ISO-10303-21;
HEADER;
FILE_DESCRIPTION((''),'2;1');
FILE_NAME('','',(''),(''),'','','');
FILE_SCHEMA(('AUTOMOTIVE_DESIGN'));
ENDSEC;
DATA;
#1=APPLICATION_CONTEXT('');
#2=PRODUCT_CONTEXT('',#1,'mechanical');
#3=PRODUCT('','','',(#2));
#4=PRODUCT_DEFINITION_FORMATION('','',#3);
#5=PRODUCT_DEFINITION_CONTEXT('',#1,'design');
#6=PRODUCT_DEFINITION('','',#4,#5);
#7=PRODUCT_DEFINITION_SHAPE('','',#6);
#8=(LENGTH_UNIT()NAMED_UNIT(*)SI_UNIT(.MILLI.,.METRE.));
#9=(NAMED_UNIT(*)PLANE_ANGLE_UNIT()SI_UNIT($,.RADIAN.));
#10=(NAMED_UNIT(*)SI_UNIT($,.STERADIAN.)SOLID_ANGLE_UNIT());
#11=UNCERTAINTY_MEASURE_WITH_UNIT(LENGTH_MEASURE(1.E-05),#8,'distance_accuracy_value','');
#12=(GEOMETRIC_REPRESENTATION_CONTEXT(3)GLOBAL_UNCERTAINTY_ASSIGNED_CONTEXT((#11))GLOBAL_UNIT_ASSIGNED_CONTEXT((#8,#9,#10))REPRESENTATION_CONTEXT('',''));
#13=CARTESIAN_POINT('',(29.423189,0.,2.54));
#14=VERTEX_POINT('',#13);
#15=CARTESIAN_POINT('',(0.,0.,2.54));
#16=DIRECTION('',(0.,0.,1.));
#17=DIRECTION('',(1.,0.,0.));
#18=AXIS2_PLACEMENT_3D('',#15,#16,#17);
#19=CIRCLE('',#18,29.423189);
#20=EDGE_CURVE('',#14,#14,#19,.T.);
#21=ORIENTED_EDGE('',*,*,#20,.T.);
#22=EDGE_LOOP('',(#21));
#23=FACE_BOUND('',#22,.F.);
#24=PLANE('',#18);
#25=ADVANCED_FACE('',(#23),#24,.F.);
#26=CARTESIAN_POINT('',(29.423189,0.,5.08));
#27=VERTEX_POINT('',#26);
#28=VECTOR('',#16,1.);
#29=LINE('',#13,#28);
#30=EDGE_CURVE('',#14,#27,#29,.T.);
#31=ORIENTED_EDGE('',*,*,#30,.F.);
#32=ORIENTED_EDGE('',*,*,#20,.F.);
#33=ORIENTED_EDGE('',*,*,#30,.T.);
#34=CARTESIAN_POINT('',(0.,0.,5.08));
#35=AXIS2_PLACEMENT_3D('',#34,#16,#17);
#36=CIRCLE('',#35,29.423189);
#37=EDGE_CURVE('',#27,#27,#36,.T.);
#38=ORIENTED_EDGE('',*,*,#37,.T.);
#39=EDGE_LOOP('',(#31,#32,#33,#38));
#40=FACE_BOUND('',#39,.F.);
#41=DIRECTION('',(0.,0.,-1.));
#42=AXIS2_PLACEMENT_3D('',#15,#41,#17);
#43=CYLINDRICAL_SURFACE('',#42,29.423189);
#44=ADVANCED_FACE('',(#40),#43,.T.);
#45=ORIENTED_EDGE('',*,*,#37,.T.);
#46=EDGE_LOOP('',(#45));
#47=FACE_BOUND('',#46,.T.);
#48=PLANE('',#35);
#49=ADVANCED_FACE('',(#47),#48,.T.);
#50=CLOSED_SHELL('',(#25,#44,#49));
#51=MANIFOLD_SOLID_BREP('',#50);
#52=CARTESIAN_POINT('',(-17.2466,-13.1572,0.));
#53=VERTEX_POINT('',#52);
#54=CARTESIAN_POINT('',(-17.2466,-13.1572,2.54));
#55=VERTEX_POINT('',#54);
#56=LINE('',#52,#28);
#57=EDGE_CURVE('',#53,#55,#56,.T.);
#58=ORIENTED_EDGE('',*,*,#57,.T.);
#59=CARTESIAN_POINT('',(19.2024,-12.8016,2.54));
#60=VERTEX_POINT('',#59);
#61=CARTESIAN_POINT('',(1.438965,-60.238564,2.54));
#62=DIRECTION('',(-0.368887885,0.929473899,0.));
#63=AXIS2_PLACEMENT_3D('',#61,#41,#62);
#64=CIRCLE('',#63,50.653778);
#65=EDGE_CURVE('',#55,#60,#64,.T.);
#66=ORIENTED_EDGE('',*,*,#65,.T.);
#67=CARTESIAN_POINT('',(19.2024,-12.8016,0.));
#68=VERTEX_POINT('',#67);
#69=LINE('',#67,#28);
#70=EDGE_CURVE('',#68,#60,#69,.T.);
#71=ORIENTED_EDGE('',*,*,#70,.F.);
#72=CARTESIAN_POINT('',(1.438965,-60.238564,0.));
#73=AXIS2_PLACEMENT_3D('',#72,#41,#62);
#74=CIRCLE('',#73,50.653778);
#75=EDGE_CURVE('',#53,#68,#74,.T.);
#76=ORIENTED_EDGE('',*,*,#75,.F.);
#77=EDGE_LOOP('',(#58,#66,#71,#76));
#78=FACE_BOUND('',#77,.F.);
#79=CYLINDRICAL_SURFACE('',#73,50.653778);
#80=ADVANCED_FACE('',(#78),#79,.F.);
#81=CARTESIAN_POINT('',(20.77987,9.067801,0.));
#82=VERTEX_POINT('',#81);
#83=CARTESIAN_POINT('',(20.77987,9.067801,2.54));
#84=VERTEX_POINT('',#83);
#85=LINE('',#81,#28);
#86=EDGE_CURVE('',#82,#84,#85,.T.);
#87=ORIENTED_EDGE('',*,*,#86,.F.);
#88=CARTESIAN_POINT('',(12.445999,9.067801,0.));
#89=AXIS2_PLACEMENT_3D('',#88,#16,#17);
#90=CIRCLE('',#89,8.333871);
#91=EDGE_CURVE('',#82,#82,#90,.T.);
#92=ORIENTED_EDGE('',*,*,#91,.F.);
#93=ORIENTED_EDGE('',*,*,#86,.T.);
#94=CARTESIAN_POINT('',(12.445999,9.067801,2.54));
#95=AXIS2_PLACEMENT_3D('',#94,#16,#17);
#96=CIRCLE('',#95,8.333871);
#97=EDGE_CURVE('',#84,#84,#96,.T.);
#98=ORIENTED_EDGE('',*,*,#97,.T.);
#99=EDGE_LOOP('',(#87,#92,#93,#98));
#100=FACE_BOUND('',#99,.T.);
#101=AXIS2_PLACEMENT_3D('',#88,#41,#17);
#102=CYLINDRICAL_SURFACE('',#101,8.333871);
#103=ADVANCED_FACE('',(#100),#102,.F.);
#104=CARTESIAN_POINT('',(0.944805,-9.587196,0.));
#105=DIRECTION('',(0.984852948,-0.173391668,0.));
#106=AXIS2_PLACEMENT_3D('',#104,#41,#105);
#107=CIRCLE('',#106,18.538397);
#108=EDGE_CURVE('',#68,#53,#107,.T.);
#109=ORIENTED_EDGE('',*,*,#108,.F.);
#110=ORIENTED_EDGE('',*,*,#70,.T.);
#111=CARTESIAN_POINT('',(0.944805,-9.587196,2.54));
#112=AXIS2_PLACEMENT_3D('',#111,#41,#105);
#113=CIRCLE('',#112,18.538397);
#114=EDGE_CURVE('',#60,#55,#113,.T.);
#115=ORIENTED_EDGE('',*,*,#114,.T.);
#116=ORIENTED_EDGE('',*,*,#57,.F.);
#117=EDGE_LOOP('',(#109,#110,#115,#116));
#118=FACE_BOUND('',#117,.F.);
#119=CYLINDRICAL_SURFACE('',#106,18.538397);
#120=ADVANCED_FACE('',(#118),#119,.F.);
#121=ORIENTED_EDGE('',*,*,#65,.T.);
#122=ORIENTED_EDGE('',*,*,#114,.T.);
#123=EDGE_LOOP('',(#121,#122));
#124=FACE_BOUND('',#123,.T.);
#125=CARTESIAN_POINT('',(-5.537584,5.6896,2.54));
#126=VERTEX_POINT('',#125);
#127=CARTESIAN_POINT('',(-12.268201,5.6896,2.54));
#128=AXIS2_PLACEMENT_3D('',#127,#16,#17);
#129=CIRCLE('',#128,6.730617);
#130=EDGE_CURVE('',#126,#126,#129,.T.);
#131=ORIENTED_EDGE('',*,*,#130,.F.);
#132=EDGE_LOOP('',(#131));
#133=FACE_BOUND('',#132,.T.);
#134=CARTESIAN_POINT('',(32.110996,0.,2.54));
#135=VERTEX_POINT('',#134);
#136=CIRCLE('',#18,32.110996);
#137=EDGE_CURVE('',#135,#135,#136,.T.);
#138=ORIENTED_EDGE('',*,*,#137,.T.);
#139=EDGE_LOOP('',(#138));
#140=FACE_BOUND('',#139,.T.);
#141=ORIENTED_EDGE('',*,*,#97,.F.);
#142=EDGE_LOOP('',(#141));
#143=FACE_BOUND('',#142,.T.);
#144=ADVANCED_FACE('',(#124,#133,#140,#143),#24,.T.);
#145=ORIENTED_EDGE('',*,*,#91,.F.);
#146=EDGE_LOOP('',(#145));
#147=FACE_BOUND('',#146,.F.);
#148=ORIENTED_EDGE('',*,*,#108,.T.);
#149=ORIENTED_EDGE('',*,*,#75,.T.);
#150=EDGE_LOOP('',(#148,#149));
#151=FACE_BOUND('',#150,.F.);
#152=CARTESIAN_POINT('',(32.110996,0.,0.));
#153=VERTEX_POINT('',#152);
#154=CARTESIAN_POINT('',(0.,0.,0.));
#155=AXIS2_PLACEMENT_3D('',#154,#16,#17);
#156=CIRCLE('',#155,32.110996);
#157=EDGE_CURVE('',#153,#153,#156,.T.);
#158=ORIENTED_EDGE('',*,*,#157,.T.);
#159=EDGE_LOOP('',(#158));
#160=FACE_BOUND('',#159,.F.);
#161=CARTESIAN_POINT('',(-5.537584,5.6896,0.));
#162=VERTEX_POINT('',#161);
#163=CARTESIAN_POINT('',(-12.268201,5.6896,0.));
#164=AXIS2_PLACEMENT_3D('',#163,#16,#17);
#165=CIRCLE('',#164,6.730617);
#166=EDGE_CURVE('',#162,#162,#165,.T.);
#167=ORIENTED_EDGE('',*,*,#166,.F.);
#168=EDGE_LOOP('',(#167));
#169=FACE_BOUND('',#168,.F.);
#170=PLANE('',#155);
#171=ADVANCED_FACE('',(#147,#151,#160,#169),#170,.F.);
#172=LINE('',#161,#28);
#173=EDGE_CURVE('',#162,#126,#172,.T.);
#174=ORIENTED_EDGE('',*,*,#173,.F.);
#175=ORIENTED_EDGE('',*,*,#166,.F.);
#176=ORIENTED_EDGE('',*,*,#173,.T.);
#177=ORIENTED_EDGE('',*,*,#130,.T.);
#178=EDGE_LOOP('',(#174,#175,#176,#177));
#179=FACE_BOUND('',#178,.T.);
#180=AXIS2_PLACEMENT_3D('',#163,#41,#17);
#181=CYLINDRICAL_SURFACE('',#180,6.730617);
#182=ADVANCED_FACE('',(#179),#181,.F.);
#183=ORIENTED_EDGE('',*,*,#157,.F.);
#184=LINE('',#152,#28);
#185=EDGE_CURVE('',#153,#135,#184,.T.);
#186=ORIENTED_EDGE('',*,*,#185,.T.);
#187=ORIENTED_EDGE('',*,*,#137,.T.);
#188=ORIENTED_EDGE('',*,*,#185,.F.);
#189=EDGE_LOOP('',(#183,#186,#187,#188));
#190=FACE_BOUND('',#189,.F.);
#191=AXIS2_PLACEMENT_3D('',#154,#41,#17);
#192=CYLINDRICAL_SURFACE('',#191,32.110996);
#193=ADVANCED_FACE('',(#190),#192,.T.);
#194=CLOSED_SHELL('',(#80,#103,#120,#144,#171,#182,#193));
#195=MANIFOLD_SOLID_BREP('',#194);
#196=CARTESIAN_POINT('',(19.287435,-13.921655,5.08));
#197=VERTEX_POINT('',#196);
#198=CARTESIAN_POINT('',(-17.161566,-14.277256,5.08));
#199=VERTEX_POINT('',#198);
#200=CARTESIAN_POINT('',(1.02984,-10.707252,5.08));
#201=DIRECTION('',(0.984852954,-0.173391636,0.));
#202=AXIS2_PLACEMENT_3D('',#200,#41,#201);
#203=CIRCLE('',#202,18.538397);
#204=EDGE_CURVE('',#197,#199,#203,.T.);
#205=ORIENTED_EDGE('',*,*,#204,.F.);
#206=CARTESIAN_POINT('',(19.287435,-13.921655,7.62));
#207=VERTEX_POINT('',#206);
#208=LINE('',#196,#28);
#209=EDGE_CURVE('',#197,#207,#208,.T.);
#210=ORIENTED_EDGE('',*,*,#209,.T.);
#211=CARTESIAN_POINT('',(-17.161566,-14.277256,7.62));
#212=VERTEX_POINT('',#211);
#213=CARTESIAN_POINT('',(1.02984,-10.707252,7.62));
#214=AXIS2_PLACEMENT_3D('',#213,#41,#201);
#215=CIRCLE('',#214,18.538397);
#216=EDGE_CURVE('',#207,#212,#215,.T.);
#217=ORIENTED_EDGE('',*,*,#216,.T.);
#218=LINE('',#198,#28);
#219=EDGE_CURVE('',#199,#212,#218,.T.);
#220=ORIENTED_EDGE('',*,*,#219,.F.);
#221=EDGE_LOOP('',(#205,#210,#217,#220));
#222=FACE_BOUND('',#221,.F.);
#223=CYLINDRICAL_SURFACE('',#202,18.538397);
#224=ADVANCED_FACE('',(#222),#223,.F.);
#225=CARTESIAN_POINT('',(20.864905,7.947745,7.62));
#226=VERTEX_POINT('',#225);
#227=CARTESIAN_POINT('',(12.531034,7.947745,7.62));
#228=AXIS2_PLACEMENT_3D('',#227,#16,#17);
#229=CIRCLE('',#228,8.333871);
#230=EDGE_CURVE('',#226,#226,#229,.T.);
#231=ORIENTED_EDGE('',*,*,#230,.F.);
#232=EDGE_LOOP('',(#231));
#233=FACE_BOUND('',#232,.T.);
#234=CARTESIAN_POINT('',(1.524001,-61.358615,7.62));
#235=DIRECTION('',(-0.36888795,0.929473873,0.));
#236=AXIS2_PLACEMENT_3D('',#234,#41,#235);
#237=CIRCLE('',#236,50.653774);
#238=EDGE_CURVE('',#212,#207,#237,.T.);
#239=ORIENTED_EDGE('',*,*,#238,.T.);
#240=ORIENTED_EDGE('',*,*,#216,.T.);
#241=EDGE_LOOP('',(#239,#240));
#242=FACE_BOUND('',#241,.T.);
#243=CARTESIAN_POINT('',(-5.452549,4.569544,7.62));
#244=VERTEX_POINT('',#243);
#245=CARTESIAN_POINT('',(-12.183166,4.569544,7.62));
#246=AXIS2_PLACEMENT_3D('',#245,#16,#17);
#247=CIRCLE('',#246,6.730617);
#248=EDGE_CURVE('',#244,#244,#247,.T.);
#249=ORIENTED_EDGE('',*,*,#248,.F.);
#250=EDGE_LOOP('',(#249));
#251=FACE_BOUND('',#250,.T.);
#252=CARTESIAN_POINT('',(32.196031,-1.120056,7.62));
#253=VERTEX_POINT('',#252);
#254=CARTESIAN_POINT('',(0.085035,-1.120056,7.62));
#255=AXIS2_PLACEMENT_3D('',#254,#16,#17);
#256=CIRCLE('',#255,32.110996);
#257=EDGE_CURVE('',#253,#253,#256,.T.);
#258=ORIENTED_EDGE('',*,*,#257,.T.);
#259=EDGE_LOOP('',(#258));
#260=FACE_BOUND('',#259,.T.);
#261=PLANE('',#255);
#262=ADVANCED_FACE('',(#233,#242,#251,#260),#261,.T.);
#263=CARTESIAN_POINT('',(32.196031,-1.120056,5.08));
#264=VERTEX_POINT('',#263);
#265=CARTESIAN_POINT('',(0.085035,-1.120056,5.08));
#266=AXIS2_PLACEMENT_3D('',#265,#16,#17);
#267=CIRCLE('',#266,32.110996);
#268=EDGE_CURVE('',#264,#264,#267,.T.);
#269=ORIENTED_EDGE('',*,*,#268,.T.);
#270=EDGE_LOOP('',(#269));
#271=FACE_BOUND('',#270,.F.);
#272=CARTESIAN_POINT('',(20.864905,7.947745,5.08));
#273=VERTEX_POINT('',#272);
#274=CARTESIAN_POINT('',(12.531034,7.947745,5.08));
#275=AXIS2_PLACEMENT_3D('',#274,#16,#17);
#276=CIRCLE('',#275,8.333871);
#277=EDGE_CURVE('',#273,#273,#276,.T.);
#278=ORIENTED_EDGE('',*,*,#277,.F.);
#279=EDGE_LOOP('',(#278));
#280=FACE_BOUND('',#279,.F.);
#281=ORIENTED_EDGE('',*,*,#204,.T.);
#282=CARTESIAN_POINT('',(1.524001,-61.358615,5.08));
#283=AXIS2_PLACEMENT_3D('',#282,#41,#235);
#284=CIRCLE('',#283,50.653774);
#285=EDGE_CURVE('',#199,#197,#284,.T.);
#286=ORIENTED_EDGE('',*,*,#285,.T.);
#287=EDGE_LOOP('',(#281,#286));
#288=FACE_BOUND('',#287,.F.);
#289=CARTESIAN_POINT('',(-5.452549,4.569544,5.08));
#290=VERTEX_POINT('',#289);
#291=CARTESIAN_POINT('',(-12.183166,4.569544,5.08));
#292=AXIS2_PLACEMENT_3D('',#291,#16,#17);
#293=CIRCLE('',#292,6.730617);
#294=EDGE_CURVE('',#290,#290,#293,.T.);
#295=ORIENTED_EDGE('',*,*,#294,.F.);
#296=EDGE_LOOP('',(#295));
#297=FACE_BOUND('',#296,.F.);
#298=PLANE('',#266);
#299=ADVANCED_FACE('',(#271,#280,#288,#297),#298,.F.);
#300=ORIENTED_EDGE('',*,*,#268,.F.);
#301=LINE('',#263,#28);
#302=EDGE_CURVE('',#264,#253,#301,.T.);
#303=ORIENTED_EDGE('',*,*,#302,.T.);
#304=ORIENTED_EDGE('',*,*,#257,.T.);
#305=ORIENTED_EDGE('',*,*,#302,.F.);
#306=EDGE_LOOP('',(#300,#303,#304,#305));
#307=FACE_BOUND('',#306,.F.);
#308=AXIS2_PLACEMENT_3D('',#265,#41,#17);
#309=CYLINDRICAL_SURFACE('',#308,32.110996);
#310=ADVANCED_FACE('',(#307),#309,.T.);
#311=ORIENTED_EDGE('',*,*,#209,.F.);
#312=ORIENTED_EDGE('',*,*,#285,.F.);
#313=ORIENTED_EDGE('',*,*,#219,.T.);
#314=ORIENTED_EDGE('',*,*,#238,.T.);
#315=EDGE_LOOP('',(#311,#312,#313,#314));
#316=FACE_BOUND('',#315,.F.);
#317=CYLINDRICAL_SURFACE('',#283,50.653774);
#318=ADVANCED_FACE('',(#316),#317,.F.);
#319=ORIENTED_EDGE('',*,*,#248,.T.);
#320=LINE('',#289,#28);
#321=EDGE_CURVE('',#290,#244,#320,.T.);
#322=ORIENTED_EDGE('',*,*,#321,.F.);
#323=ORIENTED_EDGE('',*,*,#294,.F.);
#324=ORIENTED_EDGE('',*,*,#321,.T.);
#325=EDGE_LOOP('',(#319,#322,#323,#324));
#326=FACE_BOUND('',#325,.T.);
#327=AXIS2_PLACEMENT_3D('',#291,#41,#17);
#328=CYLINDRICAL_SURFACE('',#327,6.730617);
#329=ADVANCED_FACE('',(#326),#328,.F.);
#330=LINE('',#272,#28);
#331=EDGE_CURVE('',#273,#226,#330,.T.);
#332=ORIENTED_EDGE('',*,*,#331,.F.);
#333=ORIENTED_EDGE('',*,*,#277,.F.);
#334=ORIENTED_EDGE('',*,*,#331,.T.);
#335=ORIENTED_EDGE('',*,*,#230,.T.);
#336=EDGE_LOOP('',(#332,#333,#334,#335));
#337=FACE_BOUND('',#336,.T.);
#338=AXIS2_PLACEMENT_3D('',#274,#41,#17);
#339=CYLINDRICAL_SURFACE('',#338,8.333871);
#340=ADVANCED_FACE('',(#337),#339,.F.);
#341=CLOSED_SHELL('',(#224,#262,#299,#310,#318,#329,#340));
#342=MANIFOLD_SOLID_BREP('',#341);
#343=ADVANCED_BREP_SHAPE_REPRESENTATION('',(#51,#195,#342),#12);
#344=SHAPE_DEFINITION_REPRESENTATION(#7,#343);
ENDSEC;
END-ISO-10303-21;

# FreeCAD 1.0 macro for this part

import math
import FreeCAD as App
import Part
import Sketcher
Q = App.Units.Quantity

doc = App.newDocument("Part")
body = doc.addObject("PartDesign::Body", "Body")

# Sketch on XY plane
sketch1 = doc.addObject("Sketcher::SketchObject", "Sketch")
body.addObject(sketch1)
sketch1.AttachmentSupport = (doc.XY_Plane, [""])
sketch1.MapMode = "FlatFace"
sketch1.addGeometry([
    Part.Circle(App.Vector(0, 0, 0), App.Vector(0, 0, 1), 32),  # 0
    Part.ArcOfCircle(Part.Circle(App.Vector(1, -60, 0), App.Vector(0, 0, 1), 51), math.radians(69), math.radians(112)),  # 1
    Part.ArcOfCircle(Part.Circle(App.Vector(1, -10, 0), App.Vector(0, 0, 1), 19), math.radians(-169), math.radians(-10)),  # 2
    Part.Circle(App.Vector(-12, 6, 0), App.Vector(0, 0, 1), 7),  # 3
    Part.Circle(App.Vector(12, 9, 0), App.Vector(0, 0, 1), 8),  # 4
], False)
sketch1.addConstraint([
    Sketcher.Constraint("Coincident", 1, 1, 2, 2),
    Sketcher.Constraint("Coincident", 2, 1, 1, 2),
    Sketcher.Constraint("Coincident", 0, 3, -1, 1),
    Sketcher.Constraint("DistanceX", -1, 1, 4, 3, Q("0.49 in")),
    Sketcher.Constraint("Diameter", 0, 64.221992),
    Sketcher.Constraint("DistanceX", 3, 3, -1, 1, Q("0.483 in")),
    Sketcher.Constraint("DistanceY", -1, 1, 3, 3, Q("0.224 in")),
    Sketcher.Constraint("DistanceY", -1, 1, 4, 3, Q("0.357 in")),
    Sketcher.Constraint("DistanceX", -1, 1, 1, 1, Q("0.756 in")),
    Sketcher.Constraint("DistanceY", 1, 1, -1, 1, Q("0.504 in")),
    Sketcher.Constraint("DistanceX", 2, 1, -1, 1, Q("0.679 in")),
    Sketcher.Constraint("DistanceY", 2, 1, -1, 1, Q("0.518 in")),
    Sketcher.Constraint("Diameter", 3, 13.461234),
    Sketcher.Constraint("Diameter", 4, 16.667742),
    Sketcher.Constraint("Radius", 1, 50.653778),
    Sketcher.Constraint("Radius", 2, 18.538397),
])
pad1 = doc.addObject("PartDesign::Pad", "Pad")
body.addObject(pad1)
pad1.Profile = sketch1
pad1.Length = Q("0.1 in")
body2 = doc.addObject("PartDesign::Body", "Body001")

# Sketch on XY plane
sketch2 = doc.addObject("Sketcher::SketchObject", "Sketch001")
body2.addObject(sketch2)
sketch2.AttachmentSupport = (doc.getObject("XY_Plane001"), [""])
sketch2.MapMode = "FlatFace"
sketch2.AttachmentOffset = App.Placement(App.Vector(0, 0, 0.1 * 25.4), App.Rotation())
sketch2.addGeometry(Part.Circle(App.Vector(0, 0, 0), App.Vector(0, 0, 1), 29), False)
sketch2.addConstraint([
    Sketcher.Constraint("Coincident", 0, 3, -1, 1),
    Sketcher.Constraint("Diameter", 0, 58.846378),
])
pad2 = doc.addObject("PartDesign::Pad", "Pad001")
body2.addObject(pad2)
pad2.Profile = sketch2
pad2.Length = Q("0.1 in")
body3 = doc.addObject("PartDesign::Body", "Body002")

# Sketch on XY plane
sketch3 = doc.addObject("Sketcher::SketchObject", "Sketch002")
body3.addObject(sketch3)
sketch3.AttachmentSupport = (doc.getObject("XY_Plane002"), [""])
sketch3.MapMode = "FlatFace"
sketch3.AttachmentOffset = App.Placement(App.Vector(0, 0, 0.2 * 25.4), App.Rotation())
sketch3.addGeometry([
    Part.Circle(App.Vector(0, -1, 0), App.Vector(0, 0, 1), 32),  # 0
    Part.ArcOfCircle(Part.Circle(App.Vector(2, -61, 0), App.Vector(0, 0, 1), 51), math.radians(69), math.radians(112)),  # 1
    Part.ArcOfCircle(Part.Circle(App.Vector(1, -11, 0), App.Vector(0, 0, 1), 19), math.radians(-169), math.radians(-10)),  # 2
    Part.Circle(App.Vector(-12, 5, 0), App.Vector(0, 0, 1), 7),  # 3
    Part.Circle(App.Vector(13, 8, 0), App.Vector(0, 0, 1), 8),  # 4
], False)
sketch3.addConstraint([
    Sketcher.Constraint("Coincident", 1, 1, 2, 2),
    Sketcher.Constraint("Coincident", 2, 1, 1, 2),
    Sketcher.Constraint("DistanceX", -1, 1, 1, 3, Q("0.06 in")),
    Sketcher.Constraint("DistanceX", 0, 3, 4, 3, Q("0.49 in")),
    Sketcher.Constraint("Diameter", 0, 64.221992),
    Sketcher.Constraint("DistanceX", 3, 3, 0, 3, Q("0.483 in")),
    Sketcher.Constraint("DistanceY", 0, 3, 3, 3, Q("0.224 in")),
    Sketcher.Constraint("DistanceY", 0, 3, 4, 3, Q("0.357 in")),
    Sketcher.Constraint("DistanceX", 4, 3, 1, 1, Q("0.266 in")),
    Sketcher.Constraint("DistanceY", 1, 1, 4, 3, Q("0.861 in")),
    Sketcher.Constraint("DistanceX", 2, 1, 3, 3, Q("0.196 in")),
    Sketcher.Constraint("DistanceY", 2, 1, 3, 3, Q("0.742 in")),
    Sketcher.Constraint("Diameter", 3, 13.461234),
    Sketcher.Constraint("Diameter", 4, 16.667742),
    Sketcher.Constraint("Radius", 1, 50.653774),
    Sketcher.Constraint("Radius", 2, 18.538397),
    Sketcher.Constraint("DistanceY", 2, 3, -1, 1, 10.707252),
])
pad3 = doc.addObject("PartDesign::Pad", "Pad002")
body3.addObject(pad3)
pad3.Profile = sketch3
pad3.Length = Q("0.1 in")

doc.recompute()
